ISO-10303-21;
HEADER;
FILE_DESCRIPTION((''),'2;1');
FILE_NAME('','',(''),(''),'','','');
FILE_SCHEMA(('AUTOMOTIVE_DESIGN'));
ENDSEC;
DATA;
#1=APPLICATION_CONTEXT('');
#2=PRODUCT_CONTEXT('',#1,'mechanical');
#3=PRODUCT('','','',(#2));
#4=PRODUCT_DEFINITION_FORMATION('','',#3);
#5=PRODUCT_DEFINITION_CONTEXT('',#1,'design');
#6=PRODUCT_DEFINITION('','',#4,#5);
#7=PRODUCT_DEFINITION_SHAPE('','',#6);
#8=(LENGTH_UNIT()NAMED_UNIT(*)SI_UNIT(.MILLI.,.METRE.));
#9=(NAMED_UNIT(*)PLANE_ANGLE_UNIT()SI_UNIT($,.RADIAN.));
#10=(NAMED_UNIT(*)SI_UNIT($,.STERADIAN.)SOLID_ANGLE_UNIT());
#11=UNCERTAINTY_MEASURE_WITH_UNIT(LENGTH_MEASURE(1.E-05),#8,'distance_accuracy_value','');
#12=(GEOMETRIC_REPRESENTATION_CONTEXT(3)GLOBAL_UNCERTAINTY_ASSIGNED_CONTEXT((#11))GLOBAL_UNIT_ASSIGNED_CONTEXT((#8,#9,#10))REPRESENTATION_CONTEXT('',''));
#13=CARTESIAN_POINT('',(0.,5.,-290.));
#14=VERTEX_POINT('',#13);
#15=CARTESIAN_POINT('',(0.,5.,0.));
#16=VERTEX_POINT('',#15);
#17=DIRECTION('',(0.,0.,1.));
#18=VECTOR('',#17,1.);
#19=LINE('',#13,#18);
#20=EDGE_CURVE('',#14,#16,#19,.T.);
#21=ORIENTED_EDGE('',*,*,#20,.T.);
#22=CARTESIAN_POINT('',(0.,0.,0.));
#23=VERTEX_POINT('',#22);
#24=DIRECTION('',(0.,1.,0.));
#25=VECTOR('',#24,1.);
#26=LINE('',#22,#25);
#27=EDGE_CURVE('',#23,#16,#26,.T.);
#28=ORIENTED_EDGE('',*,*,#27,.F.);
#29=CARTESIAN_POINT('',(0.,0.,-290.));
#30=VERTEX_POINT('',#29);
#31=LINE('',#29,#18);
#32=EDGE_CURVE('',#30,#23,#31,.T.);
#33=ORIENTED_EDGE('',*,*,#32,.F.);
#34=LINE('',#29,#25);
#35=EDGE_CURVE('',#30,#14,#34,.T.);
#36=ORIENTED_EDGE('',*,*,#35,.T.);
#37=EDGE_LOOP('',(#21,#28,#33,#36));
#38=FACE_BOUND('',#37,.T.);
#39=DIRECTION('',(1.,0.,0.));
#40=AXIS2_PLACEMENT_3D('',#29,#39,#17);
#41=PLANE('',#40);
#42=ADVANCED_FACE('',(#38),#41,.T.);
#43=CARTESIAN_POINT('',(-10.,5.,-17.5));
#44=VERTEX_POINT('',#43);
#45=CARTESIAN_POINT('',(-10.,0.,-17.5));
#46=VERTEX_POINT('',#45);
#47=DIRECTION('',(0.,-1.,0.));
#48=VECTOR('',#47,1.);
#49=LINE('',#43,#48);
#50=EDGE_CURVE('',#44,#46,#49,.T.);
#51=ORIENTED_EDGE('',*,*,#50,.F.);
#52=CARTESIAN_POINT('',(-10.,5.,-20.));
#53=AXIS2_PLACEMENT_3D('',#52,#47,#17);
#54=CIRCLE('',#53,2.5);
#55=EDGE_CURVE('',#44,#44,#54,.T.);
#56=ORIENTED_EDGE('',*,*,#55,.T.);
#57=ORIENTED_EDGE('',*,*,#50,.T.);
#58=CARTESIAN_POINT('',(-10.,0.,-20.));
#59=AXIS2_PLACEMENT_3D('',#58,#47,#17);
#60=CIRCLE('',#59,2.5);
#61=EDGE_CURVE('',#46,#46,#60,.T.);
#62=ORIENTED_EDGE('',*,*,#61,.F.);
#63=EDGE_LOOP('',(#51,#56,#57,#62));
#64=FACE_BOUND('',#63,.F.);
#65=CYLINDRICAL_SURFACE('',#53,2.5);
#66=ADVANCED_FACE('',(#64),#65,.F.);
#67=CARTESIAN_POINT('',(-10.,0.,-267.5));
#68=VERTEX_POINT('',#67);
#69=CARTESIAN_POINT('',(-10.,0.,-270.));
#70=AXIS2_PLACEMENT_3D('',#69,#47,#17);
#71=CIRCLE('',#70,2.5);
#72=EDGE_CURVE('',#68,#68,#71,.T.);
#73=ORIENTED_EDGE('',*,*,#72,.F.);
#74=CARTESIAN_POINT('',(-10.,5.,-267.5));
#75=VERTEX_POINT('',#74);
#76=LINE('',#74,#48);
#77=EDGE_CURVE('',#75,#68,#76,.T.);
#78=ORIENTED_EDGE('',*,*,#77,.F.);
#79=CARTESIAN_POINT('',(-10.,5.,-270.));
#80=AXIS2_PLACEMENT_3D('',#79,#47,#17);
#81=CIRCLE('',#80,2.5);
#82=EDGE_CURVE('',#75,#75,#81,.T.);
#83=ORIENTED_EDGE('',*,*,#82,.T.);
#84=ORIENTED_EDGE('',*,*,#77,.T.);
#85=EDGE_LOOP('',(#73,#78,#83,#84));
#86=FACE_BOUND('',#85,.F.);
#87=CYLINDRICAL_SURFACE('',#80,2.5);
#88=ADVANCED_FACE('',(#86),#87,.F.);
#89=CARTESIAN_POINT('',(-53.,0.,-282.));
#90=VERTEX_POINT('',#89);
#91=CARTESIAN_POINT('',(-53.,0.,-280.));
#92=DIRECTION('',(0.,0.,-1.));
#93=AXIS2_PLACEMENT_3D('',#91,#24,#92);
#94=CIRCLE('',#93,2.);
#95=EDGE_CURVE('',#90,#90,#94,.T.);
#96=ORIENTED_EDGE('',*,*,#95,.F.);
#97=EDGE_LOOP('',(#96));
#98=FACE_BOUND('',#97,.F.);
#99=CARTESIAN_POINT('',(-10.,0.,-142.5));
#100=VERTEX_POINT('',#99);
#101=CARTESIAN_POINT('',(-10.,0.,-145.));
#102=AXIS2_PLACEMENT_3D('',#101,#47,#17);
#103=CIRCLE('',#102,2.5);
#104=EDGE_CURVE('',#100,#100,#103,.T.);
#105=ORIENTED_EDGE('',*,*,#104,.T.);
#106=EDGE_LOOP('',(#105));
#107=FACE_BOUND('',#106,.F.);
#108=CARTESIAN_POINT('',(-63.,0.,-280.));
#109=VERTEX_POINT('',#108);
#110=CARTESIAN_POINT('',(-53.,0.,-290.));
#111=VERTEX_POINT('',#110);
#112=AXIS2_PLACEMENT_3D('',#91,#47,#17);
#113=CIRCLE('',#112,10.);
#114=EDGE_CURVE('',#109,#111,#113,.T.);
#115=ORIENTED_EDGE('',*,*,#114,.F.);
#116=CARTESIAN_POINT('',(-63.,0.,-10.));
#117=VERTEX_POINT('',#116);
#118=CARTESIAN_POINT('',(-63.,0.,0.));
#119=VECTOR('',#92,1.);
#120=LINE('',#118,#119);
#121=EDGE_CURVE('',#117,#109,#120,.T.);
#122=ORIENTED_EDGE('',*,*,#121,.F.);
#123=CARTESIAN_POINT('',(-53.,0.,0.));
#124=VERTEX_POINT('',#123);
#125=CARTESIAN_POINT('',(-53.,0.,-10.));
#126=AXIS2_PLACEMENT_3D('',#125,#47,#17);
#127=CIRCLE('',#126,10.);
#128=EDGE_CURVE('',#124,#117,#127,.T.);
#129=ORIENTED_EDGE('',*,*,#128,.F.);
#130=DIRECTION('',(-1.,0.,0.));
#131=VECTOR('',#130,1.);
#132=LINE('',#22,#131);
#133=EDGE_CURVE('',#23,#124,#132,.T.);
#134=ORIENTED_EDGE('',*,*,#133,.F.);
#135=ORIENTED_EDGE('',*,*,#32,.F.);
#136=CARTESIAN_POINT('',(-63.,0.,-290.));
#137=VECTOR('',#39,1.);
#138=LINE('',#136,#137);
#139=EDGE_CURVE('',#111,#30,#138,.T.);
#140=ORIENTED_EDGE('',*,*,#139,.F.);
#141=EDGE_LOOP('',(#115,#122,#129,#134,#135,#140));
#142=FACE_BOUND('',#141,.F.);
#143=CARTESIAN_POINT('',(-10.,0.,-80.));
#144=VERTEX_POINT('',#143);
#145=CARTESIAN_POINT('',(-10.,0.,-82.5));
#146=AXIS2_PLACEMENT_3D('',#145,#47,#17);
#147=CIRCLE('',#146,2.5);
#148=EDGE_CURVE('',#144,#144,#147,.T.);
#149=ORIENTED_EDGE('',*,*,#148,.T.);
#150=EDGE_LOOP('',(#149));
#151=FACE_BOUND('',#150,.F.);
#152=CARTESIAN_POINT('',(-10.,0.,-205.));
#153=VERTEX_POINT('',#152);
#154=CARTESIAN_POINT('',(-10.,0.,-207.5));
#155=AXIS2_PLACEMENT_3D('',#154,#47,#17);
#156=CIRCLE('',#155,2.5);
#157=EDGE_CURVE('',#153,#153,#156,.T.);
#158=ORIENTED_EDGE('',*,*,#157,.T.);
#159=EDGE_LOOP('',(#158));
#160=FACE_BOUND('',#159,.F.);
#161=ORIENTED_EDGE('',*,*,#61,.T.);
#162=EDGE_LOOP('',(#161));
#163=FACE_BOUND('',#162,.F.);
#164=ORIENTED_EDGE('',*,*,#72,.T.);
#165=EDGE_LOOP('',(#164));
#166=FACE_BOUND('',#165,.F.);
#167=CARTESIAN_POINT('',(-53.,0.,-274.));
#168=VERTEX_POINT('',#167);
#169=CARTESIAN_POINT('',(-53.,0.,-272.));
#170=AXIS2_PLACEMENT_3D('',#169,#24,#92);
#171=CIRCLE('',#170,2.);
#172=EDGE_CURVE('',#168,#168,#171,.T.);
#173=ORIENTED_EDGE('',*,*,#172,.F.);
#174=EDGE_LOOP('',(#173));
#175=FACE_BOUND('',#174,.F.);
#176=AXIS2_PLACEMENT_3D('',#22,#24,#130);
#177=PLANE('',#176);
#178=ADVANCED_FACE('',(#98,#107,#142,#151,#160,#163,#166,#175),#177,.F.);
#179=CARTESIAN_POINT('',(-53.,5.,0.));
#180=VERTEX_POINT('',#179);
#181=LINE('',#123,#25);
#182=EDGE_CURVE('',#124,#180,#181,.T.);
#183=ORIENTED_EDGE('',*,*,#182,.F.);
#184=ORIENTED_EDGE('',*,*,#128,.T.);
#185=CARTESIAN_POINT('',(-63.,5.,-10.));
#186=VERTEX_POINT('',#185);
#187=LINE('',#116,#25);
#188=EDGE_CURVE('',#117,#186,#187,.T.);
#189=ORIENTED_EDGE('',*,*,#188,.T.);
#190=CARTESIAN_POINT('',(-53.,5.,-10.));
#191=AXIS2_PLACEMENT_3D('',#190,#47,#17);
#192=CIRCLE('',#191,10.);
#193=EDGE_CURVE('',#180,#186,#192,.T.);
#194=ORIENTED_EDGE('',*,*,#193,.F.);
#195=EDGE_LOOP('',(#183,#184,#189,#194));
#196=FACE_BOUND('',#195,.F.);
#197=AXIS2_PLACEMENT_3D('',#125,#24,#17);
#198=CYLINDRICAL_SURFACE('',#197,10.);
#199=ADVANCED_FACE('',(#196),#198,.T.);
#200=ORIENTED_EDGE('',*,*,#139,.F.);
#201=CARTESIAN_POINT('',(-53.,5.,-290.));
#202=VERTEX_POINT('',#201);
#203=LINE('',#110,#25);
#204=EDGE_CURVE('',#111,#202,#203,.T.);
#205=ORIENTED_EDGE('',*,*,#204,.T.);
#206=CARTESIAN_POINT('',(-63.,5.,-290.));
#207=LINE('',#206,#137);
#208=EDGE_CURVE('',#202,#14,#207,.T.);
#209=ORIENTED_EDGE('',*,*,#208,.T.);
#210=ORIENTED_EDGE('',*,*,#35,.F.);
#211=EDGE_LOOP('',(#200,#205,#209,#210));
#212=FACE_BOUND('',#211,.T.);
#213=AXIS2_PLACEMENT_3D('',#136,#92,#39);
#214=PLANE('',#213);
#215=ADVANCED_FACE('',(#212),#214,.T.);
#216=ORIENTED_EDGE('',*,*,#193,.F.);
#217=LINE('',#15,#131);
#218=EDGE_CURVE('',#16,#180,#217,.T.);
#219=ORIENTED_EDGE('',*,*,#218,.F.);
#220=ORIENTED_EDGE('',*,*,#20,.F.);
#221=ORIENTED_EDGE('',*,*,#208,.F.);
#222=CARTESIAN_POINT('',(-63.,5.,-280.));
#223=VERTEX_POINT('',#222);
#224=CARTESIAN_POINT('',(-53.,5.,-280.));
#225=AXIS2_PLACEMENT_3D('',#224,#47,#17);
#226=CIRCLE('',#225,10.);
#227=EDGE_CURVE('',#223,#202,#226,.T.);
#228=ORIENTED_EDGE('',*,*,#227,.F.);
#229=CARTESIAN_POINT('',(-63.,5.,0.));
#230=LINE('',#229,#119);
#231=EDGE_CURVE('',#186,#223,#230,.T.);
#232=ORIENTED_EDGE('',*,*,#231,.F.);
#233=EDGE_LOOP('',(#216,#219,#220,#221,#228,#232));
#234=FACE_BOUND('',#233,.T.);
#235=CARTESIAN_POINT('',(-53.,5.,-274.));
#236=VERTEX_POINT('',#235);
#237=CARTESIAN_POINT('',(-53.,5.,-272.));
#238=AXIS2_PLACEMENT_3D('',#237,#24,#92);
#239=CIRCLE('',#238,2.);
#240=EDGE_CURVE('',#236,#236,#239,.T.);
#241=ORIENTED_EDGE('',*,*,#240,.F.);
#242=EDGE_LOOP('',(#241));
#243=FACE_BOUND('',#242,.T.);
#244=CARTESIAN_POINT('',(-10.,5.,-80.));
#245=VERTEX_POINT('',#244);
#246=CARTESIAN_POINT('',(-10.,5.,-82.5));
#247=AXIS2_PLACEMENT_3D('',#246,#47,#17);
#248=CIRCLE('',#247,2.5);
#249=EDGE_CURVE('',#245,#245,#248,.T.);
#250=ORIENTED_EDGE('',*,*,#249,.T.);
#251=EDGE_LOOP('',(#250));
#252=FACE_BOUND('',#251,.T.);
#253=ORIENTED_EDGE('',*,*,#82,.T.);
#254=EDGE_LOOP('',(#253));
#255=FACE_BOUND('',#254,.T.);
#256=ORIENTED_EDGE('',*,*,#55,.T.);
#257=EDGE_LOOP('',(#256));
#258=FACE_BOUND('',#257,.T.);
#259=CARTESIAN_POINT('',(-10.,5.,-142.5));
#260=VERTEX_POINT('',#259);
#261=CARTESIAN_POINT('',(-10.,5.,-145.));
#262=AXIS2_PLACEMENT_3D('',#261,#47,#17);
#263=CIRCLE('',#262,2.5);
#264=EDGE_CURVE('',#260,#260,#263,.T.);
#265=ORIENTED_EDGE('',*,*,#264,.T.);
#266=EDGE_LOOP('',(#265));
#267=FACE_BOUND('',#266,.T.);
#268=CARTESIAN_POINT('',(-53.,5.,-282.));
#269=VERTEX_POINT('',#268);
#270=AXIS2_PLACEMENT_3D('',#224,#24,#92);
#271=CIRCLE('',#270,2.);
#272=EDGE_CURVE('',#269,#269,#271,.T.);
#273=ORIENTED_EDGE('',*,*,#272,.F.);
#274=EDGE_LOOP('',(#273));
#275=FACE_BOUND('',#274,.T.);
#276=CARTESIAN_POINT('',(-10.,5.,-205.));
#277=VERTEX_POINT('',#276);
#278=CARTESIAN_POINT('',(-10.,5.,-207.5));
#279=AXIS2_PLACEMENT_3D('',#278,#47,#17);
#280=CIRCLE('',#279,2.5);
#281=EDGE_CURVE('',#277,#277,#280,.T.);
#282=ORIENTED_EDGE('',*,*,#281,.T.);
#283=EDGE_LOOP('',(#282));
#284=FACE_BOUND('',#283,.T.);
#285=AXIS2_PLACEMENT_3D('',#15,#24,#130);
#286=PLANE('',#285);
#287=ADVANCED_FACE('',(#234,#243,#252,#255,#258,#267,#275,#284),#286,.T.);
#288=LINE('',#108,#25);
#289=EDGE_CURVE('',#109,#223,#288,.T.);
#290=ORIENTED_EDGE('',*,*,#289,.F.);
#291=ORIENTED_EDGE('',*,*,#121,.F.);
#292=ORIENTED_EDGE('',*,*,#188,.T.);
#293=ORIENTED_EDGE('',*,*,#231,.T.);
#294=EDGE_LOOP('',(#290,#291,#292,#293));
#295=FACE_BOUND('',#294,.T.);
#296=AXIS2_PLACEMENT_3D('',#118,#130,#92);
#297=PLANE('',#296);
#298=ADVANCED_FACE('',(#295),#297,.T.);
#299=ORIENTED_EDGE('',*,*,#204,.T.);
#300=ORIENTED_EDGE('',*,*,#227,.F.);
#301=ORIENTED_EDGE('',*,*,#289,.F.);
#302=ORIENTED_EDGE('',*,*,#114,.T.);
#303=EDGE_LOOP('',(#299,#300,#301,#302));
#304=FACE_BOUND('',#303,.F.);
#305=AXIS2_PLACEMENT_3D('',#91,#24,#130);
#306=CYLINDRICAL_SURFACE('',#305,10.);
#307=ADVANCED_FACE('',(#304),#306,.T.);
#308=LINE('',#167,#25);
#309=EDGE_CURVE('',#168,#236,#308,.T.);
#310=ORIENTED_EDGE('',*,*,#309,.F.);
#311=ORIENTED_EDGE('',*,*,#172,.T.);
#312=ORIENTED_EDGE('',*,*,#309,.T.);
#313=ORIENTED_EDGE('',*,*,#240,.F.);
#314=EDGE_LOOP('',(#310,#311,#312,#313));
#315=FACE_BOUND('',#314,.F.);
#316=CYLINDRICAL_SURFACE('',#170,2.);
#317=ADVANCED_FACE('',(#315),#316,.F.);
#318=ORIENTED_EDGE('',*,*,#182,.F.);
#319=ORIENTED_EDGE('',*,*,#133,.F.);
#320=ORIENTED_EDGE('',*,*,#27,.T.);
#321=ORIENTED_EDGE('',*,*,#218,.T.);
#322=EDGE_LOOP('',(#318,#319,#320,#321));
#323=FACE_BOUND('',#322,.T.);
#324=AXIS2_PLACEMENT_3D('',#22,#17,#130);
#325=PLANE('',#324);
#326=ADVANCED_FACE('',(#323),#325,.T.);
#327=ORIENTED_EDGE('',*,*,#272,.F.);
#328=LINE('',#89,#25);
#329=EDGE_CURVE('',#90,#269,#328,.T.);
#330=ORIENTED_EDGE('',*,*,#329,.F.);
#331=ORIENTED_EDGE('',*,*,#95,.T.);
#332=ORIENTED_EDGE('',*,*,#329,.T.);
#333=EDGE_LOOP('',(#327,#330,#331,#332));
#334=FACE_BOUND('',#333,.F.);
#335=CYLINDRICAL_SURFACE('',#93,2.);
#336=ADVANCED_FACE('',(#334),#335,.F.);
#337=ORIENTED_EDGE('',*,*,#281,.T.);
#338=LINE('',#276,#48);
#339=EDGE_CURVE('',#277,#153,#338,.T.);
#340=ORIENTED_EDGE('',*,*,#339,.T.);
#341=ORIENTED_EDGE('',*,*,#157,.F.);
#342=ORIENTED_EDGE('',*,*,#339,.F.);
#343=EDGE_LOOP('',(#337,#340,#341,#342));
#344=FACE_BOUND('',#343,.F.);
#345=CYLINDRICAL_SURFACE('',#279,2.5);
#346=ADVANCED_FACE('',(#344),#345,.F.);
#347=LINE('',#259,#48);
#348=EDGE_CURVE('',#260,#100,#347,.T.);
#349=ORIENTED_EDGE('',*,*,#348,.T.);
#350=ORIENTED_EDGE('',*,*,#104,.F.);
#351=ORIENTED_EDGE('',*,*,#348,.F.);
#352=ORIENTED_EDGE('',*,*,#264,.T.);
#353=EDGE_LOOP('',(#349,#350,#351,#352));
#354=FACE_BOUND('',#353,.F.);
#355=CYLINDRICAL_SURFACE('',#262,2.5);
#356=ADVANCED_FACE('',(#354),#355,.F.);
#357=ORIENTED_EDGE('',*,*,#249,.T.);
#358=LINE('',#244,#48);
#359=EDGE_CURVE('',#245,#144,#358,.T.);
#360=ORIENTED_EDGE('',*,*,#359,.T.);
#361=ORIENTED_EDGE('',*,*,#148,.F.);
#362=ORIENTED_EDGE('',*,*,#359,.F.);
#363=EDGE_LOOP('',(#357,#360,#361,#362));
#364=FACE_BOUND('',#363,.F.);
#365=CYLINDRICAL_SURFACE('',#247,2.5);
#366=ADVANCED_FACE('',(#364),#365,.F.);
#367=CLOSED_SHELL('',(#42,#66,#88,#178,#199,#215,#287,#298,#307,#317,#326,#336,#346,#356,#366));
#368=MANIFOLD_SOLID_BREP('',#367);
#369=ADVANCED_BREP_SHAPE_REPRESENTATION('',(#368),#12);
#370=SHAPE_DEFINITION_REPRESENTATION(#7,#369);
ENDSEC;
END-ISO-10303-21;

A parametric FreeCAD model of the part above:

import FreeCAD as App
import Part
import Sketcher
from FreeCAD import Vector


def edges_at(feature, points):
    """Names of the edges that pass closest to the given points."""
    edges = feature.Shape.Edges
    near = lambda p: min(range(len(edges)), key=lambda i: edges[i].distToShape(Part.Vertex(*p))[0])
    return sorted({f"Edge{near(p) + 1}" for p in points})

doc = App.newDocument("Part")
body = doc.addObject("PartDesign::Body", "Body")

# Sketch on XZ plane
sketch1 = body.newObject("Sketcher::SketchObject", "Sketch")
sketch1.AttachmentSupport = (doc.getObject("XZ_Plane"), [""])
sketch1.MapMode = "FlatFace"
sketch1.addGeometry([
    Part.LineSegment(Vector(-63, 0, 0), Vector(0, 0, 0)),
    Part.LineSegment(Vector(0, 0, 0), Vector(0, -290, 0)),
    Part.LineSegment(Vector(0, -290, 0), Vector(-63, -290, 0)),
    Part.LineSegment(Vector(-63, -290, 0), Vector(-63, 0, 0)),
], False)
sketch1.addConstraint([
    Sketcher.Constraint("Coincident", 0, 2, 1, 1),
    Sketcher.Constraint("Coincident", 1, 2, 2, 1),
    Sketcher.Constraint("Coincident", 2, 2, 3, 1),
    Sketcher.Constraint("Coincident", 3, 2, 0, 1),
    Sketcher.Constraint("Horizontal", 0),
    Sketcher.Constraint("Vertical", 1),
    Sketcher.Constraint("Horizontal", 2),
    Sketcher.Constraint("Vertical", 3),
    Sketcher.Constraint("Coincident", 0, 2, -1, 1),
    Sketcher.Constraint("DistanceX", 0, 1, 0, 2, 63.0),
    Sketcher.Constraint("DistanceY", 1, 2, 1, 1, 290.0),
])
pad1 = body.newObject("PartDesign::Pad", "Pad")
pad1.Profile = sketch1
pad1.Length = 5
pad1.Reversed = True
doc.recompute()

fillet = body.newObject("PartDesign::Fillet", "Fillet")
fillet.Base = (pad1, edges_at(pad1, [(-63, 2.5, 0), (-63, 2.5, -290)]))
fillet.Radius = 10

# Sketch on XZ plane
sketch2 = body.newObject("Sketcher::SketchObject", "Sketch001")
sketch2.AttachmentSupport = (doc.getObject("XZ_Plane"), [""])
sketch2.MapMode = "FlatFace"
sketch2.addGeometry([
    Part.Circle(Vector(-53, -280, 0), Vector(0, 0, 1), 2),
    Part.Circle(Vector(-53, -272, 0), Vector(0, 0, 1), 2),
], False)
sketch2.addConstraint([
    Sketcher.Constraint("Equal", 0, 1),
    Sketcher.Constraint("Vertical", 0, 3, 1, 3),
    Sketcher.Constraint("Diameter", 0, 4.0),
    Sketcher.Constraint("DistanceX", 0, 3, -1, 1, 53.0),
    Sketcher.Constraint("DistanceY", 0, 3, -1, 1, 280.0),
    Sketcher.Constraint("DistanceY", 1, 3, -1, 1, 272.0),
])
doc.recompute()
hole = body.newObject("PartDesign::Hole", "Hole")
hole.Profile = sketch2
hole.ThreadType = "None"
hole.Diameter = 4
hole.DepthType = "ThroughAll"

# Sketch on XZ plane
sketch3 = body.newObject("Sketcher::SketchObject", "Sketch002")
sketch3.AttachmentSupport = (doc.getObject("XZ_Plane"), [""])
sketch3.MapMode = "FlatFace"
sketch3.AttachmentOffset = App.Placement(Vector(0, 0, -5), App.Rotation())
sketch3.addGeometry([
    Part.Circle(Vector(-10, -20, 0), Vector(0, 0, 1), 2.5),  # 0
    Part.Circle(Vector(-10, -82.5, 0), Vector(0, 0, 1), 2.5),  # 1
    Part.Circle(Vector(-10, -145, 0), Vector(0, 0, 1), 2.5),  # 2
    Part.Circle(Vector(-10, -207.5, 0), Vector(0, 0, 1), 2.5),  # 3
    Part.Circle(Vector(-10, -270, 0), Vector(0, 0, 1), 2.5),  # 4
], False)
sketch3.addConstraint([
    Sketcher.Constraint("Equal", 0, 1),
    Sketcher.Constraint("Equal", 1, 2),
    Sketcher.Constraint("Equal", 2, 3),
    Sketcher.Constraint("Equal", 3, 4),
    Sketcher.Constraint("Vertical", 0, 3, 1, 3),
    Sketcher.Constraint("Vertical", 1, 3, 2, 3),
    Sketcher.Constraint("Vertical", 2, 3, 3, 3),
    Sketcher.Constraint("Vertical", 3, 3, 4, 3),
    Sketcher.Constraint("Diameter", 0, 5.0),
    Sketcher.Constraint("DistanceX", 0, 3, -1, 1, 10.0),
    Sketcher.Constraint("DistanceY", 0, 3, -1, 1, 20.0),
    Sketcher.Constraint("DistanceY", 2, 3, -1, 1, 145.0),
    Sketcher.Constraint("DistanceY", 4, 3, -1, 1, 270.0),
    Sketcher.Constraint("DistanceY", 3, 3, 1, 3, 125.0),
    Sketcher.Constraint("DistanceY", 1, 3, -1, 1, 82.5),
])
doc.recompute()
hole2 = body.newObject("PartDesign::Hole", "Hole001")
hole2.Profile = sketch3
hole2.ThreadType = "None"
hole2.Diameter = 5
hole2.DepthType = "ThroughAll"
hole2.Reversed = True

doc.recompute()
